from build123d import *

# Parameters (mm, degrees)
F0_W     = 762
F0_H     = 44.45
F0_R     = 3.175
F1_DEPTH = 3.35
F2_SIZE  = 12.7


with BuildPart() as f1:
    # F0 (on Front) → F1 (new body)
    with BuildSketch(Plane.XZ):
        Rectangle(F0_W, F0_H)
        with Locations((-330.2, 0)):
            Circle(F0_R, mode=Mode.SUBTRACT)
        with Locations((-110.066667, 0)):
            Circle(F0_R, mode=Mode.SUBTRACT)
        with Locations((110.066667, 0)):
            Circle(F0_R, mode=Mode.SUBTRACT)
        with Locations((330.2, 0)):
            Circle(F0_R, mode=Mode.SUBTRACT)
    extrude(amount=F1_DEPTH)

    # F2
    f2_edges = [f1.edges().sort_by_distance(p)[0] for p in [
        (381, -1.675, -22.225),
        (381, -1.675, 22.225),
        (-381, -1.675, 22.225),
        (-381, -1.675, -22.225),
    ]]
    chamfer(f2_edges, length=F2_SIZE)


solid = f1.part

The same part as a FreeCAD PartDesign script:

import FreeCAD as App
import Part
import Sketcher
Q = App.Units.Quantity


def edges_at(feature, points):
    """Names of the edges that pass closest to the given points."""
    edges = feature.Shape.Edges
    near = lambda p: min(range(len(edges)), key=lambda i: edges[i].distToShape(Part.Vertex(*p))[0])
    return sorted({f"Edge{near(p) + 1}" for p in points})


def add_polygon(sketch, points):
    """Adds a closed chain of lines whose ends are joined by coincident constraints."""
    first, n = sketch.GeometryCount, len(points)
    for a, b in zip(points, points[1:] + points[:1]):
        sketch.addGeometry(Part.LineSegment(App.Vector(*a, 0), App.Vector(*b, 0)), False)
    for i in range(n):
        sketch.addConstraint(Sketcher.Constraint("Coincident", first + i, 2, first + (i + 1) % n, 1))

doc = App.newDocument("Part")
body = doc.addObject("PartDesign::Body", "Body")

# Sketch on XZ plane
sketch1 = body.newObject("Sketcher::SketchObject", "Sketch")
sketch1.AttachmentSupport = (doc.getObject("XZ_Plane"), [""])
sketch1.MapMode = "FlatFace"
add_polygon(sketch1, [(-381, 22.225), (-381, -22.225), (381, -22.225), (381, 22.225)])  # lines 0-3
sketch1.addGeometry(Part.Circle(App.Vector(-330.2, 0, 0), App.Vector(0, 0, 1), 3.175), False)  # 4
sketch1.addGeometry(Part.Circle(App.Vector(-110.066667, 0, 0), App.Vector(0, 0, 1), 3.175), False)  # 5
sketch1.addGeometry(Part.Circle(App.Vector(110.066667, 0, 0), App.Vector(0, 0, 1), 3.175), False)  # 6
sketch1.addGeometry(Part.Circle(App.Vector(330.2, 0, 0), App.Vector(0, 0, 1), 3.175), False)  # 7
sketch1.addConstraint(Sketcher.Constraint("Vertical", 0))
sketch1.addConstraint(Sketcher.Constraint("Horizontal", 1))
sketch1.addConstraint(Sketcher.Constraint("Vertical", 2))
sketch1.addConstraint(Sketcher.Constraint("Horizontal", 3))
sketch1.addConstraint(Sketcher.Constraint("Equal", 4, 5))
sketch1.addConstraint(Sketcher.Constraint("Equal", 5, 6))
sketch1.addConstraint(Sketcher.Constraint("Equal", 6, 7))
sketch1.addConstraint(Sketcher.Constraint("Symmetric", 5, 3, 6, 3, -1, 1))
sketch1.addConstraint(Sketcher.Constraint("Symmetric", 4, 3, 7, 3, -1, 1))
sketch1.addConstraint(Sketcher.Constraint("Symmetric", 0, 2, 2, 2, -1, 1))
sketch1.addConstraint(Sketcher.Constraint("PointOnObject", 4, 3, -1))
sketch1.addConstraint(Sketcher.Constraint("PointOnObject", 5, 3, -1))
sketch1.addConstraint(Sketcher.Constraint("Diameter", 4, Q("0.25 in")))
sketch1.addConstraint(Sketcher.Constraint("DistanceX", 1, 1, 1, 2, Q("30 in")))
sketch1.addConstraint(Sketcher.Constraint("DistanceX", 4, 3, -1, 1, Q("13 in")))
sketch1.addConstraint(Sketcher.Constraint("DistanceY", 0, 2, 0, 1, Q("1.75 in")))
sketch1.addConstraint(Sketcher.Constraint("DistanceX", 5, 3, -1, 1, 110.066667))
pad1 = body.newObject("PartDesign::Pad", "Pad")
pad1.Profile = sketch1
pad1.Length = 3.35
doc.recompute()

chamfer = body.newObject("PartDesign::Chamfer", "Chamfer")
chamfer.Base = (pad1, edges_at(pad1, [
    (381, -1.675, -22.225),
    (381, -1.675, 22.225),
    (-381, -1.675, 22.225),
    (-381, -1.675, -22.225),
]))
chamfer.Size = Q("0.5 in")

doc.recompute()
